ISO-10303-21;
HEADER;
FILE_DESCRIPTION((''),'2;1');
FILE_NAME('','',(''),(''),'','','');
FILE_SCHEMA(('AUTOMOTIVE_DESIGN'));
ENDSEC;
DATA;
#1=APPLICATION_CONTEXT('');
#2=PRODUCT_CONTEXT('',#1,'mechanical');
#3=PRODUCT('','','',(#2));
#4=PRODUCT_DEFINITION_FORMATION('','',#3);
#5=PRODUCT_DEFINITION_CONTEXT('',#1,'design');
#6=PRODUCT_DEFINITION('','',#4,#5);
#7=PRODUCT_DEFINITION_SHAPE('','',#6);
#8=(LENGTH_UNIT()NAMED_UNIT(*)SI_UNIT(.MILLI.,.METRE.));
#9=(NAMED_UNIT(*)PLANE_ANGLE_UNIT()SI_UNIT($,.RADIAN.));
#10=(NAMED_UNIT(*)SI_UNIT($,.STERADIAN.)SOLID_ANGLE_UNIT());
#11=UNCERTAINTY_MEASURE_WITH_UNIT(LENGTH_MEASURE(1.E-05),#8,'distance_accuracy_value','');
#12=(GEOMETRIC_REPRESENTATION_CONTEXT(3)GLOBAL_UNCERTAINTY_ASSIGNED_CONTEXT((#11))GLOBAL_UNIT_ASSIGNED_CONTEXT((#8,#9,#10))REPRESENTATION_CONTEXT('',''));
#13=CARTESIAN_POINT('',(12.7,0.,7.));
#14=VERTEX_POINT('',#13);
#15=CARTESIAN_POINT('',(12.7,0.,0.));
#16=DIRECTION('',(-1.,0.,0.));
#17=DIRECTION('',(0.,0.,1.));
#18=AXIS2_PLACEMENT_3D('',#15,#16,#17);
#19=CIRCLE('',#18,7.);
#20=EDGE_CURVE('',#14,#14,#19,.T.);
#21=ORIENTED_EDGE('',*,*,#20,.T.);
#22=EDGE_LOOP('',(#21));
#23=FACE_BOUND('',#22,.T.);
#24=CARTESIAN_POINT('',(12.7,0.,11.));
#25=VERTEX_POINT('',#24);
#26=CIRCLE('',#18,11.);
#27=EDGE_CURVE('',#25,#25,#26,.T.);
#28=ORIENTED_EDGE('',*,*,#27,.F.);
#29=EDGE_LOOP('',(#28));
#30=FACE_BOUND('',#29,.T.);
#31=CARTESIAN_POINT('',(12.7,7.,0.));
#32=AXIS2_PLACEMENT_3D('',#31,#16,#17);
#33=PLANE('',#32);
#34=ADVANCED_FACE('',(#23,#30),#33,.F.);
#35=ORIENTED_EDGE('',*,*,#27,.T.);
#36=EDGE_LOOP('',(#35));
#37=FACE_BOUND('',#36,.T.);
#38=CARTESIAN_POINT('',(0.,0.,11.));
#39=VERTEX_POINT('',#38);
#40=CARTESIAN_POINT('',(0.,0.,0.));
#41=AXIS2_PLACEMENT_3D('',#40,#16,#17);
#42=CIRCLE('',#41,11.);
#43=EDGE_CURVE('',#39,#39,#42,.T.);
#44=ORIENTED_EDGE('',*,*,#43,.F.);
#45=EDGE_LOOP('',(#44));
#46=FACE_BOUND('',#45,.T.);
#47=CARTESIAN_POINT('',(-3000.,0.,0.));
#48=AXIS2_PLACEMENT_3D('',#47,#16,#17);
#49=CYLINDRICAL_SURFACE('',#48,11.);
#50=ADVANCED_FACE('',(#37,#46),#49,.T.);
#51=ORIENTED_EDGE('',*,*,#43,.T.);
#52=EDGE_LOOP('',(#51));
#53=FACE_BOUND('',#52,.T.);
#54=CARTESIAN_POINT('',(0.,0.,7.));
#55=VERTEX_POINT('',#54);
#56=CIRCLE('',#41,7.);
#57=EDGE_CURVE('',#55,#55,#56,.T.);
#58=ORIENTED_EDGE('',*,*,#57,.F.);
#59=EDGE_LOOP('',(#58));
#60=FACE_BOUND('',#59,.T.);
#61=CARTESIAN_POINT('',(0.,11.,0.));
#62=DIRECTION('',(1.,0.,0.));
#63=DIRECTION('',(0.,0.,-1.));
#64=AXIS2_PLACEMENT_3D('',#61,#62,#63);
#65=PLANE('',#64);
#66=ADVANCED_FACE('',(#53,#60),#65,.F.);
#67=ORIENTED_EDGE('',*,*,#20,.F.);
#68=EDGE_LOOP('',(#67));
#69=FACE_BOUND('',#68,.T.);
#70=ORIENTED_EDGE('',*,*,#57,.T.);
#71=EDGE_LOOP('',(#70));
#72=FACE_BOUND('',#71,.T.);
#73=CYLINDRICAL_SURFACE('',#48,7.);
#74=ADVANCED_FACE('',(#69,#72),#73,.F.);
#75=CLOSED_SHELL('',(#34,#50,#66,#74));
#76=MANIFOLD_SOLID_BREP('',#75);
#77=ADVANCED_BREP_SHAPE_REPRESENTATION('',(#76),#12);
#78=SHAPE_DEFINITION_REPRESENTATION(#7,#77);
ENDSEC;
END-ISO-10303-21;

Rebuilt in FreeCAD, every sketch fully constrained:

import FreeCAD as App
import Part
import Sketcher
from FreeCAD import Vector

doc = App.newDocument("Part")
body = doc.addObject("PartDesign::Body", "Body")

sketch1 = body.newObject("Sketcher::SketchObject", "Sketch")
sketch1.AttachmentSupport = (doc.getObject("XY_Plane"), [""])
sketch1.MapMode = "FlatFace"
sketch1.addGeometry([
    Part.LineSegment(Vector(0, 11, 0), Vector(0, 7, 0)),
    Part.LineSegment(Vector(0, 7, 0), Vector(12.7, 7, 0)),
    Part.LineSegment(Vector(12.7, 7, 0), Vector(12.7, 11, 0)),
    Part.LineSegment(Vector(12.7, 11, 0), Vector(0, 11, 0)),
], False)
sketch1.addConstraint([
    Sketcher.Constraint("Coincident", 0, 2, 1, 1),
    Sketcher.Constraint("Coincident", 1, 2, 2, 1),
    Sketcher.Constraint("Coincident", 2, 2, 3, 1),
    Sketcher.Constraint("Coincident", 3, 2, 0, 1),
    Sketcher.Constraint("Vertical", 0),
    Sketcher.Constraint("Horizontal", 1),
    Sketcher.Constraint("Vertical", 2),
    Sketcher.Constraint("Horizontal", 3),
    Sketcher.Constraint("PointOnObject", 0, 2, -2),
    Sketcher.Constraint("DistanceY", 0, 2, 0, 1, 4.0),
    Sketcher.Constraint("DistanceX", 1, 1, 1, 2, 12.7),
    Sketcher.Constraint("DistanceY", -1, 1, 0, 2, 7.0),
])
revolution = body.newObject("PartDesign::Revolution", "Revolution")
revolution.Profile = sketch1
revolution.ReferenceAxis = (sketch1, ["H_Axis"])
revolution.Angle = 360

doc.recompute()
